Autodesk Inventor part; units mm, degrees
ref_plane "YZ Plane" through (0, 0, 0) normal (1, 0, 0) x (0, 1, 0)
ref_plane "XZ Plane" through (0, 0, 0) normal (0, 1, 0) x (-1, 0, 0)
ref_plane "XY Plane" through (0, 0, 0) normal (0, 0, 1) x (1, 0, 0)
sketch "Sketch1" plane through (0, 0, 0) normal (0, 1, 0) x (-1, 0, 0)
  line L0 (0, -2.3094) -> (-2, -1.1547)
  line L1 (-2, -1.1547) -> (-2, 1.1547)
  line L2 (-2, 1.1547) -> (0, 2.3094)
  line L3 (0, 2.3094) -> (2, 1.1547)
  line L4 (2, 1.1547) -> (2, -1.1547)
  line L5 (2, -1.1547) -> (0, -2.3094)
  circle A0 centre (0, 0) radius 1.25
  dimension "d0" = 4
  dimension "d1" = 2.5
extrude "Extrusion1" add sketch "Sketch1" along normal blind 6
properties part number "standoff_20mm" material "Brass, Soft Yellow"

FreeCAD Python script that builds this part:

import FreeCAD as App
import Part
import Sketcher
Q = App.Units.Quantity

doc = App.newDocument("Part")
body = doc.addObject("PartDesign::Body", "Body")

# Sketch on XZ plane
sketch1 = doc.addObject("Sketcher::SketchObject", "Sketch")
body.addObject(sketch1)
sketch1.AttachmentSupport = (doc.XZ_Plane, [""])
sketch1.MapMode = "FlatFace"
sketch1.addGeometry([
    Part.LineSegment(App.Vector(2, -1.2, 0), App.Vector(0, -2.3, 0)),  # 0
    Part.LineSegment(App.Vector(0, -2.3, 0), App.Vector(-2, -1.2, 0)),  # 1
    Part.LineSegment(App.Vector(-2, -1.2, 0), App.Vector(-2, 1.2, 0)),  # 2
    Part.LineSegment(App.Vector(-2, 1.2, 0), App.Vector(0, 2.3, 0)),  # 3
    Part.LineSegment(App.Vector(0, 2.3, 0), App.Vector(2, 1.2, 0)),  # 4
    Part.LineSegment(App.Vector(2, 1.2, 0), App.Vector(2, -1.2, 0)),  # 5
    Part.Circle(App.Vector(0, 0, 0), App.Vector(0, 0, 1), 1.2),  # 6
], False)
sketch1.addConstraint([
    Sketcher.Constraint("Coincident", 0, 2, 1, 1),
    Sketcher.Constraint("Coincident", 1, 2, 2, 1),
    Sketcher.Constraint("Coincident", 2, 2, 3, 1),
    Sketcher.Constraint("Coincident", 3, 2, 4, 1),
    Sketcher.Constraint("Coincident", 4, 2, 5, 1),
    Sketcher.Constraint("Coincident", 5, 2, 0, 1),
    Sketcher.Constraint("Vertical", 2),
    Sketcher.Constraint("Vertical", 5),
    Sketcher.Constraint("Coincident", 6, 3, -1, 1),
    Sketcher.Constraint("Symmetric", 0, 2, 3, 2, -1, 1),
    Sketcher.Constraint("Symmetric", 1, 2, 4, 2, -1, 1),
    Sketcher.Constraint("PointOnObject", 0, 2, -2),
    Sketcher.Constraint("Parallel", 0, 3),
    Sketcher.Constraint("Horizontal", 2, 2, 4, 2),
    Sketcher.Constraint("Diameter", 6, 2.5),
    Sketcher.Constraint("DistanceX", 2, 2, 4, 2, 4.0),
    Sketcher.Constraint("Angle", 0, Q("-150 deg")),
    Sketcher.Constraint("DistanceY", 2, 1, 2, 2, 2.3094),
])
pad1 = doc.addObject("PartDesign::Pad", "Pad")
body.addObject(pad1)
pad1.Profile = sketch1
pad1.Length = 6
pad1.Reversed = True

doc.recompute()
